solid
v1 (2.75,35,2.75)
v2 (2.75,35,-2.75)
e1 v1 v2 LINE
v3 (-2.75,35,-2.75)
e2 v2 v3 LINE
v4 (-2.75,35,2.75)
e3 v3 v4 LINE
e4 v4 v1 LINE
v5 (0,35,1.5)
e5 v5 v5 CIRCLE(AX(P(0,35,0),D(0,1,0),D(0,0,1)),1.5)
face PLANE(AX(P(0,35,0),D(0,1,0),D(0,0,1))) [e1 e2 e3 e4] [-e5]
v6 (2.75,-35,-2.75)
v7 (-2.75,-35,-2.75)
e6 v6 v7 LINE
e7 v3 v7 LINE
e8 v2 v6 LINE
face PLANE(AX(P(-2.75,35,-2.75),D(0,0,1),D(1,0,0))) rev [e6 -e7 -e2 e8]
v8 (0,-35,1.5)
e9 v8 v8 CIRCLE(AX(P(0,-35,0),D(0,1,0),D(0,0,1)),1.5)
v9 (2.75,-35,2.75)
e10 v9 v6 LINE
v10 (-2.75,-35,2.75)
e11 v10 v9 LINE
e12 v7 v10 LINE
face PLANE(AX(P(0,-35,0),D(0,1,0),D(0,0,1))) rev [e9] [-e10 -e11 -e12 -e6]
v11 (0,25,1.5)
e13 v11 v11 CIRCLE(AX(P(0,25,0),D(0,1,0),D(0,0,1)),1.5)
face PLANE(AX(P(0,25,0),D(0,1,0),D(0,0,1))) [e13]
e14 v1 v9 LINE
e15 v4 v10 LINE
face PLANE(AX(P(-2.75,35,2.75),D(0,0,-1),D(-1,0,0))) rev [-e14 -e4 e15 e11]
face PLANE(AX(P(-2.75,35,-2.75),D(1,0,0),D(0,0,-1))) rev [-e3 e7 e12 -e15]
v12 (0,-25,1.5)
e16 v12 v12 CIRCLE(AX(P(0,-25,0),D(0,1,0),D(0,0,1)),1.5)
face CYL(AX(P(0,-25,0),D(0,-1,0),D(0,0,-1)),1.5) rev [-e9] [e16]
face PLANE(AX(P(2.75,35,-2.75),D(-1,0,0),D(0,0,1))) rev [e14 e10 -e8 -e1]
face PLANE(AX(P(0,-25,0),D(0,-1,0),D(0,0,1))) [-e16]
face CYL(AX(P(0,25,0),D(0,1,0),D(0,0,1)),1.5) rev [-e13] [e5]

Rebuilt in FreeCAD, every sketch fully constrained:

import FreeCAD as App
import Part
import Sketcher
from FreeCAD import Vector
Q = App.Units.Quantity

doc = App.newDocument("Part")
body = doc.addObject("PartDesign::Body", "Body")

sketch1 = body.newObject("Sketcher::SketchObject", "Sketch")
sketch1.AttachmentSupport = (doc.getObject("XZ_Plane"), [""])
sketch1.MapMode = "FlatFace"
sketch1.addGeometry([
    Part.LineSegment(Vector(-3, -3, 0), Vector(-3, 3, 0)),
    Part.LineSegment(Vector(-3, 3, 0), Vector(3, 3, 0)),
    Part.LineSegment(Vector(3, 3, 0), Vector(3, -3, 0)),
    Part.LineSegment(Vector(3, -3, 0), Vector(-3, -3, 0)),
], False)
sketch1.addConstraint([
    Sketcher.Constraint("Coincident", 0, 2, 1, 1),
    Sketcher.Constraint("Coincident", 1, 2, 2, 1),
    Sketcher.Constraint("Coincident", 2, 2, 3, 1),
    Sketcher.Constraint("Coincident", 3, 2, 0, 1),
    Sketcher.Constraint("Vertical", 0),
    Sketcher.Constraint("Horizontal", 1),
    Sketcher.Constraint("Vertical", 2),
    Sketcher.Constraint("Horizontal", 3),
    Sketcher.Constraint("Symmetric", 0, 2, 2, 2, -1, 1),
    Sketcher.Constraint("Equal", 3, 0),
    Sketcher.Constraint("DistanceX", 1, 1, 1, 2, Q("5.5 mm")),
])
pad1 = body.newObject("PartDesign::Pad", "Pad")
pad1.Profile = sketch1
pad1.Length = 70
pad1.Midplane = True

sketch2 = body.newObject("Sketcher::SketchObject", "Sketch001")
sketch2.AttachmentSupport = (doc.getObject("XZ_Plane"), [""])
sketch2.MapMode = "FlatFace"
sketch2.AttachmentOffset = App.Placement(Vector(0, 0, -35), App.Rotation())
sketch2.addGeometry(Part.Circle(Vector(0, 0, 0), Vector(0, 0, 1), 1.5), False)
sketch2.addConstraint([
    Sketcher.Constraint("Coincident", 0, 3, -1, 1),
    Sketcher.Constraint("Diameter", 0, Q("3 mm")),
])
pocket1 = body.newObject("PartDesign::Pocket", "Pocket")
pocket1.Profile = sketch2
pocket1.Length = 10
pocket1.Reversed = True
doc.recompute()

mirrored = body.newObject("PartDesign::Mirrored", "Mirrored")
mirrored.Originals = [pocket1]
mirrored.MirrorPlane = (doc.getObject("XZ_Plane"), [""])
body.Tip = mirrored

doc.recompute()
